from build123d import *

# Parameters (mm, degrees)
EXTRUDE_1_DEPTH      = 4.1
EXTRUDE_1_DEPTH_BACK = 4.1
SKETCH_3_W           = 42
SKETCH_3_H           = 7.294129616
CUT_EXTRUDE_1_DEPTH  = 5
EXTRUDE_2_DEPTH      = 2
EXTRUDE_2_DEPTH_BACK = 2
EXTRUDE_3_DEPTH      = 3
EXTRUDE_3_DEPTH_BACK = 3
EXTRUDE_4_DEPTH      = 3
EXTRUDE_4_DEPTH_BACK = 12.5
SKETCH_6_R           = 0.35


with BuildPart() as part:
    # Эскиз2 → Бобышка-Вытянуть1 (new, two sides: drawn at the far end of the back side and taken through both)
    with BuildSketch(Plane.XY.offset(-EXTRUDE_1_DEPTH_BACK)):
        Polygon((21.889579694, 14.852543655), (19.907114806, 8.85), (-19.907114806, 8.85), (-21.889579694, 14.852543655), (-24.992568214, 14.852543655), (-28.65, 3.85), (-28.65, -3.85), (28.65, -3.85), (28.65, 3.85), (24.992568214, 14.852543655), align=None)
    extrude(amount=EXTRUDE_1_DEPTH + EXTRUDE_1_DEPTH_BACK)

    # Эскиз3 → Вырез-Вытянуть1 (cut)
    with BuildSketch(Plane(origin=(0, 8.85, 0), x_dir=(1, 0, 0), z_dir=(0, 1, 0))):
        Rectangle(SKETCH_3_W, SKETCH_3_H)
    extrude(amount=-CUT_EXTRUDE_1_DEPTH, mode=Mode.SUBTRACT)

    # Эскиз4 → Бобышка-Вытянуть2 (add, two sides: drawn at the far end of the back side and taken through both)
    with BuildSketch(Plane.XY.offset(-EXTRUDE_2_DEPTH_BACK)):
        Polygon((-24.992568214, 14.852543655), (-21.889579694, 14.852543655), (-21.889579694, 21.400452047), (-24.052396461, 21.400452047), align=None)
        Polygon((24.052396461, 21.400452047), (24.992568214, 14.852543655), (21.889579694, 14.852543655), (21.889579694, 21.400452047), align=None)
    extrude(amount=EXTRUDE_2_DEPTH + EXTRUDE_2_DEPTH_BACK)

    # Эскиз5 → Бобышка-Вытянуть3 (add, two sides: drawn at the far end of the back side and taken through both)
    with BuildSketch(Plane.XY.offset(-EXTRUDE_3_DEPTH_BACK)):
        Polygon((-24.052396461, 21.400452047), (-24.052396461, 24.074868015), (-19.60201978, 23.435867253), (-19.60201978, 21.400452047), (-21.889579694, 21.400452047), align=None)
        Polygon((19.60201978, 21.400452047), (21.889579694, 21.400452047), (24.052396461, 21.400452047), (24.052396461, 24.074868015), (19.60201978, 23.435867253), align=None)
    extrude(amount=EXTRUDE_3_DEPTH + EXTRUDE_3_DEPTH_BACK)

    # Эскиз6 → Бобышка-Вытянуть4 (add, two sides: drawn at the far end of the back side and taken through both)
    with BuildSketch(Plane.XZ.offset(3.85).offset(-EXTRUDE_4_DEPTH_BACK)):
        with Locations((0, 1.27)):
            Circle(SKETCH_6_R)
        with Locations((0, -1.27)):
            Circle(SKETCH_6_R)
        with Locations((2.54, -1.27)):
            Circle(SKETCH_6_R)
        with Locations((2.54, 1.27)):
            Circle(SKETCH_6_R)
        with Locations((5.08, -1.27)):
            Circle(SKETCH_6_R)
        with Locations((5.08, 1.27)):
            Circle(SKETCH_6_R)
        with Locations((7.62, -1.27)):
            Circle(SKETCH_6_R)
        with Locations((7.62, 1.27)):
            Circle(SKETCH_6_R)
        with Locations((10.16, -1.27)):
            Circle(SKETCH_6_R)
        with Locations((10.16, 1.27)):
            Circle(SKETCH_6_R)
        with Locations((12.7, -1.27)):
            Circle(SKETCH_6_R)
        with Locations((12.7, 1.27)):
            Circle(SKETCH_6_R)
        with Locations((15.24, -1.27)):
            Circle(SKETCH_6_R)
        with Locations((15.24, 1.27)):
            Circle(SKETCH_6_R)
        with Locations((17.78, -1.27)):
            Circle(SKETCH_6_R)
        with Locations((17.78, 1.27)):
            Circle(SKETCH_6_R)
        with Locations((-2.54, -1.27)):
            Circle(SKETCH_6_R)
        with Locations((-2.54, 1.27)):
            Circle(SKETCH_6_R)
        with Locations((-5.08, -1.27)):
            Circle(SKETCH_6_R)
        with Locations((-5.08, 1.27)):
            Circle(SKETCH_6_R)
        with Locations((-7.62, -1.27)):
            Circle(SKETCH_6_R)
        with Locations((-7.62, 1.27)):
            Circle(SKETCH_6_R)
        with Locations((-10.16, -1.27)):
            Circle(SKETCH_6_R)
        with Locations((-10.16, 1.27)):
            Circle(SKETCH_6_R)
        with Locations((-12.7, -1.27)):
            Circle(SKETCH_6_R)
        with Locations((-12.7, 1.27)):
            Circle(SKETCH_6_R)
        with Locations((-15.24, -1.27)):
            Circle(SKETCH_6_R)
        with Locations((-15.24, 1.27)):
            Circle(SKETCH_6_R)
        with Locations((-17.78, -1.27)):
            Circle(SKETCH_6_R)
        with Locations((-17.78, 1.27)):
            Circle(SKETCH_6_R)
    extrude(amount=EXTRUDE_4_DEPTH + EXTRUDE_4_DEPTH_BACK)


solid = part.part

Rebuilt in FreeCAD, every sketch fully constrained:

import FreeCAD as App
import Part
import Sketcher

V = App.Vector
Q = App.Units.Quantity


def add_polygon(sketch, points):
    """Adds a closed chain of lines whose ends are joined by coincident constraints."""
    first, n = sketch.GeometryCount, len(points)
    for a, b in zip(points, points[1:] + points[:1]):
        sketch.addGeometry(Part.LineSegment(App.Vector(*a, 0), App.Vector(*b, 0)), False)
    for i in range(n):
        sketch.addConstraint(Sketcher.Constraint("Coincident", first + i, 2, first + (i + 1) % n, 1))

doc = App.newDocument("Part")
body = doc.addObject("PartDesign::Body", "Body")

sketch1 = doc.addObject("Sketcher::SketchObject", "Sketch")
body.addObject(sketch1)
sketch1.AttachmentSupport = (doc.XY_Plane, [""])
sketch1.MapMode = "FlatFace"
add_polygon(sketch1, [(21.88958, 14.852544), (19.907115, 8.85), (-19.907115, 8.85), (-21.88958, 14.852544), (-24.992568, 14.852544), (-28.65, 3.85), (-28.65, -3.85), (28.65, -3.85), (28.65, 3.85), (24.992568, 14.852544)])
sketch1.addConstraint([
    Sketcher.Constraint("Horizontal", 1),
    Sketcher.Constraint("Horizontal", 3),
    Sketcher.Constraint("Vertical", 5),
    Sketcher.Constraint("Horizontal", 6),
    Sketcher.Constraint("Vertical", 7),
    Sketcher.Constraint("Horizontal", 9),
    Sketcher.Constraint("Symmetric", 4, 2, 6, 2, -1, 1),
    Sketcher.Constraint("Symmetric", 3, 2, 8, 2, -2),
    Sketcher.Constraint("Horizontal", 4, 2, 7, 2),
    Sketcher.Constraint("Equal", 3, 9),
    Sketcher.Constraint("Equal", 0, 2),
    Sketcher.Constraint("DistanceX", 6, 1, 6, 2, Q("57.3 mm")),
    Sketcher.Constraint("DistanceY", 5, 2, 5, 1, Q("7.7 mm")),
    Sketcher.Constraint("DistanceY", 4, 2, 1, 2, Q("5 mm")),
    Sketcher.Constraint("DistanceX", 1, 2, 1, 1, Q("39.81423 mm")),
    Sketcher.Constraint("DistanceX", 3, 2, 3, 1, Q("3.102989 mm")),
    Sketcher.Constraint("DistanceX", 2, 2, -1, 1, Q("21.88958 mm")),
    Sketcher.Constraint("Distance", 0, Q("6.321447 mm")),
])
pad1 = doc.addObject("PartDesign::Pad", "Pad")
body.addObject(pad1)
pad1.Profile = sketch1
pad1.Type = "TwoLengths"
pad1.Length = 4.1
pad1.Length2 = 4.1

sketch2 = doc.addObject("Sketcher::SketchObject", "Sketch001")
body.addObject(sketch2)
sketch2.AttachmentSupport = (doc.XZ_Plane, [""])
sketch2.MapMode = "FlatFace"
sketch2.AttachmentOffset = App.Placement(V(0, 0, -8.85), App.Rotation())
add_polygon(sketch2, [(-21, -3.647065), (-21, 3.647065), (21, 3.647065), (21, -3.647065)])
sketch2.addConstraint([
    Sketcher.Constraint("Vertical", 0),
    Sketcher.Constraint("Horizontal", 1),
    Sketcher.Constraint("Vertical", 2),
    Sketcher.Constraint("Horizontal", 3),
    Sketcher.Constraint("Symmetric", 0, 2, 2, 2, -1, 1),
    Sketcher.Constraint("DistanceX", 1, 1, 1, 2, Q("42 mm")),
    Sketcher.Constraint("DistanceY", 0, 1, 0, 2, Q("7.29413 mm")),
])
pocket1 = doc.addObject("PartDesign::Pocket", "Pocket")
body.addObject(pocket1)
pocket1.Profile = sketch2
pocket1.Length = 5
pocket1.Reversed = True

sketch3 = doc.addObject("Sketcher::SketchObject", "Sketch002")
body.addObject(sketch3)
sketch3.AttachmentSupport = (doc.XY_Plane, [""])
sketch3.MapMode = "FlatFace"
add_polygon(sketch3, [(-24.992568, 14.852544), (-21.88958, 14.852544), (-21.88958, 21.400452), (-24.052396, 21.400452)])
add_polygon(sketch3, [(24.992568, 14.852544), (24.052396, 21.400452), (21.88958, 21.400452), (21.88958, 14.852544)])
sketch3.addConstraint([
    Sketcher.Constraint("Horizontal", 0),
    Sketcher.Constraint("Vertical", 1),
    Sketcher.Constraint("Horizontal", 2),
    Sketcher.Constraint("Horizontal", 5),
    Sketcher.Constraint("Vertical", 6),
    Sketcher.Constraint("Horizontal", 7),
    Sketcher.Constraint("Symmetric", 2, 2, 4, 2, -2),
    Sketcher.Constraint("Symmetric", 0, 2, 6, 2, -2),
    Sketcher.Constraint("Equal", 0, 7),
    Sketcher.Constraint("DistanceX", 0, 1, 0, 2, Q("3.102989 mm")),
    Sketcher.Constraint("DistanceY", 1, 1, 1, 2, Q("6.547908 mm")),
    Sketcher.Constraint("Distance", 3, Q("6.615061 mm")),
    Sketcher.Constraint("DistanceX", 0, 2, -1, 1, Q("21.88958 mm")),
    Sketcher.Constraint("DistanceY", -1, 1, 0, 2, Q("14.852544 mm")),
])
pad2 = doc.addObject("PartDesign::Pad", "Pad001")
body.addObject(pad2)
pad2.Profile = sketch3
pad2.Type = "TwoLengths"
pad2.Length = 2
pad2.Length2 = 2

sketch4 = doc.addObject("Sketcher::SketchObject", "Sketch003")
body.addObject(sketch4)
sketch4.AttachmentSupport = (doc.XY_Plane, [""])
sketch4.MapMode = "FlatFace"
add_polygon(sketch4, [(-24.052396, 24.074868), (-24.052396, 21.400452), (-19.60202, 21.400452), (-19.60202, 23.435867)])
add_polygon(sketch4, [(19.60202, 21.400452), (24.052396, 21.400452), (24.052396, 24.074868), (19.60202, 23.435867)])
sketch4.addConstraint([
    Sketcher.Constraint("Vertical", 0),
    Sketcher.Constraint("Horizontal", 1),
    Sketcher.Constraint("Vertical", 2),
    Sketcher.Constraint("Horizontal", 4),
    Sketcher.Constraint("Vertical", 5),
    Sketcher.Constraint("Vertical", 7),
    Sketcher.Constraint("Symmetric", 0, 2, 4, 2, -2),
    Sketcher.Constraint("Symmetric", 2, 2, 6, 2, -2),
    Sketcher.Constraint("Horizontal", 3, 2, 5, 2),
    Sketcher.Constraint("DistanceY", 2, 2, 3, 2, Q("0.639001 mm")),
    Sketcher.Constraint("DistanceX", 1, 1, 1, 2, Q("4.450377 mm")),
    Sketcher.Constraint("DistanceY", 0, 2, 0, 1, Q("2.674416 mm")),
    Sketcher.Constraint("DistanceX", 1, 2, -1, 1, Q("19.60202 mm")),
    Sketcher.Constraint("DistanceY", -1, 1, 3, 2, Q("24.074868 mm")),
])
pad3 = doc.addObject("PartDesign::Pad", "Pad002")
body.addObject(pad3)
pad3.Profile = sketch4
pad3.Type = "TwoLengths"
pad3.Length = 3
pad3.Length2 = 3

sketch5 = doc.addObject("Sketcher::SketchObject", "Sketch004")
body.addObject(sketch5)
sketch5.AttachmentSupport = (doc.XZ_Plane, [""])
sketch5.MapMode = "FlatFace"
sketch5.AttachmentOffset = App.Placement(V(0, 0, 3.85), App.Rotation())
sketch5.addGeometry([
    Part.Circle(V(0, 1.27, 0), V(0, 0, 1), 0.35),
    Part.Circle(V(0, -1.27, 0), V(0, 0, 1), 0.35),
    Part.Circle(V(2.54, -1.27, 0), V(0, 0, 1), 0.35),
    Part.Circle(V(2.54, 1.27, 0), V(0, 0, 1), 0.35),
    Part.Circle(V(5.08, -1.27, 0), V(0, 0, 1), 0.35),
    Part.Circle(V(5.08, 1.27, 0), V(0, 0, 1), 0.35),
    Part.Circle(V(7.62, -1.27, 0), V(0, 0, 1), 0.35),
    Part.Circle(V(7.62, 1.27, 0), V(0, 0, 1), 0.35),
    Part.Circle(V(10.16, -1.27, 0), V(0, 0, 1), 0.35),
    Part.Circle(V(10.16, 1.27, 0), V(0, 0, 1), 0.35),
    Part.Circle(V(12.7, -1.27, 0), V(0, 0, 1), 0.35),
    Part.Circle(V(12.7, 1.27, 0), V(0, 0, 1), 0.35),
    Part.Circle(V(15.24, -1.27, 0), V(0, 0, 1), 0.35),
    Part.Circle(V(15.24, 1.27, 0), V(0, 0, 1), 0.35),
    Part.Circle(V(17.78, -1.27, 0), V(0, 0, 1), 0.35),
    Part.Circle(V(17.78, 1.27, 0), V(0, 0, 1), 0.35),
    Part.Circle(V(-2.54, -1.27, 0), V(0, 0, 1), 0.35),
    Part.Circle(V(-2.54, 1.27, 0), V(0, 0, 1), 0.35),
    Part.Circle(V(-5.08, -1.27, 0), V(0, 0, 1), 0.35),
    Part.Circle(V(-5.08, 1.27, 0), V(0, 0, 1), 0.35),
    Part.Circle(V(-7.62, -1.27, 0), V(0, 0, 1), 0.35),
    Part.Circle(V(-7.62, 1.27, 0), V(0, 0, 1), 0.35),
    Part.Circle(V(-10.16, -1.27, 0), V(0, 0, 1), 0.35),
    Part.Circle(V(-10.16, 1.27, 0), V(0, 0, 1), 0.35),
    Part.Circle(V(-12.7, -1.27, 0), V(0, 0, 1), 0.35),
    Part.Circle(V(-12.7, 1.27, 0), V(0, 0, 1), 0.35),
    Part.Circle(V(-15.24, -1.27, 0), V(0, 0, 1), 0.35),
    Part.Circle(V(-15.24, 1.27, 0), V(0, 0, 1), 0.35),
    Part.Circle(V(-17.78, -1.27, 0), V(0, 0, 1), 0.35),
    Part.Circle(V(-17.78, 1.27, 0), V(0, 0, 1), 0.35),
], False)
sketch5.addConstraint([
    Sketcher.Constraint("Equal", 0, 1),
    Sketcher.Constraint("Equal", 1, 2),
    Sketcher.Constraint("Equal", 2, 3),
    Sketcher.Constraint("Equal", 3, 4),
    Sketcher.Constraint("Equal", 4, 5),
    Sketcher.Constraint("Equal", 5, 6),
    Sketcher.Constraint("Equal", 6, 7),
    Sketcher.Constraint("Equal", 7, 8),
    Sketcher.Constraint("Equal", 8, 9),
    Sketcher.Constraint("Equal", 9, 10),
    Sketcher.Constraint("Equal", 10, 11),
    Sketcher.Constraint("Equal", 11, 12),
    Sketcher.Constraint("Equal", 12, 13),
    Sketcher.Constraint("Equal", 13, 14),
    Sketcher.Constraint("Equal", 14, 15),
    Sketcher.Constraint("Equal", 15, 16),
    Sketcher.Constraint("Equal", 16, 17),
    Sketcher.Constraint("Equal", 17, 18),
    Sketcher.Constraint("Equal", 18, 19),
    Sketcher.Constraint("Equal", 19, 20),
    Sketcher.Constraint("Equal", 20, 21),
    Sketcher.Constraint("Equal", 21, 22),
    Sketcher.Constraint("Equal", 22, 23),
    Sketcher.Constraint("Equal", 23, 24),
    Sketcher.Constraint("Equal", 24, 25),
    Sketcher.Constraint("Equal", 25, 26),
    Sketcher.Constraint("Equal", 26, 27),
    Sketcher.Constraint("Equal", 27, 28),
    Sketcher.Constraint("Equal", 28, 29),
    Sketcher.Constraint("Symmetric", 0, 3, 1, 3, -1, 1),
    Sketcher.Constraint("Symmetric", 3, 3, 16, 3, -1, 1),
    Sketcher.Constraint("Symmetric", 2, 3, 17, 3, -1, 1),
    Sketcher.Constraint("Symmetric", 5, 3, 18, 3, -1, 1),
    Sketcher.Constraint("Symmetric", 4, 3, 19, 3, -1, 1),
    Sketcher.Constraint("Symmetric", 7, 3, 20, 3, -1, 1),
    Sketcher.Constraint("Symmetric", 6, 3, 21, 3, -1, 1),
    Sketcher.Constraint("Symmetric", 9, 3, 22, 3, -1, 1),
    Sketcher.Constraint("Symmetric", 8, 3, 23, 3, -1, 1),
    Sketcher.Constraint("Symmetric", 11, 3, 24, 3, -1, 1),
    Sketcher.Constraint("Symmetric", 10, 3, 25, 3, -1, 1),
    Sketcher.Constraint("Symmetric", 13, 3, 26, 3, -1, 1),
    Sketcher.Constraint("Symmetric", 12, 3, 27, 3, -1, 1),
    Sketcher.Constraint("Symmetric", 15, 3, 28, 3, -1, 1),
    Sketcher.Constraint("Symmetric", 14, 3, 29, 3, -1, 1),
    Sketcher.Constraint("Symmetric", 2, 3, 16, 3, -2),
    Sketcher.Constraint("Symmetric", 4, 3, 18, 3, -2),
    Sketcher.Constraint("Symmetric", 6, 3, 20, 3, -2),
    Sketcher.Constraint("Symmetric", 8, 3, 22, 3, -2),
    Sketcher.Constraint("Symmetric", 10, 3, 24, 3, -2),
    Sketcher.Constraint("Symmetric", 12, 3, 26, 3, -2),
    Sketcher.Constraint("Symmetric", 14, 3, 28, 3, -2),
    Sketcher.Constraint("PointOnObject", 0, 3, -2),
    Sketcher.Constraint("Horizontal", 1, 3, 2, 3),
    Sketcher.Constraint("Horizontal", 2, 3, 4, 3),
    Sketcher.Constraint("Horizontal", 4, 3, 6, 3),
    Sketcher.Constraint("Horizontal", 6, 3, 8, 3),
    Sketcher.Constraint("Horizontal", 8, 3, 10, 3),
    Sketcher.Constraint("Horizontal", 10, 3, 12, 3),
    Sketcher.Constraint("Horizontal", 12, 3, 14, 3),
    Sketcher.Constraint("Diameter", 0, Q("0.7 mm")),
    Sketcher.Constraint("DistanceX", -1, 1, 10, 3, Q("12.7 mm")),
    Sketcher.Constraint("DistanceY", -1, 1, 0, 3, Q("1.27 mm")),
    Sketcher.Constraint("DistanceX", -1, 1, 2, 3, Q("2.54 mm")),
    Sketcher.Constraint("DistanceX", -1, 1, 4, 3, Q("5.08 mm")),
    Sketcher.Constraint("DistanceX", -1, 1, 6, 3, Q("7.62 mm")),
    Sketcher.Constraint("DistanceX", -1, 1, 8, 3, Q("10.16 mm")),
    Sketcher.Constraint("DistanceX", -1, 1, 12, 3, Q("15.24 mm")),
    Sketcher.Constraint("DistanceX", -1, 1, 14, 3, Q("17.78 mm")),
])
pad4 = doc.addObject("PartDesign::Pad", "Pad003")
body.addObject(pad4)
pad4.Profile = sketch5
pad4.Type = "TwoLengths"
pad4.Length = 3
pad4.Length2 = 12.5

doc.recompute()
